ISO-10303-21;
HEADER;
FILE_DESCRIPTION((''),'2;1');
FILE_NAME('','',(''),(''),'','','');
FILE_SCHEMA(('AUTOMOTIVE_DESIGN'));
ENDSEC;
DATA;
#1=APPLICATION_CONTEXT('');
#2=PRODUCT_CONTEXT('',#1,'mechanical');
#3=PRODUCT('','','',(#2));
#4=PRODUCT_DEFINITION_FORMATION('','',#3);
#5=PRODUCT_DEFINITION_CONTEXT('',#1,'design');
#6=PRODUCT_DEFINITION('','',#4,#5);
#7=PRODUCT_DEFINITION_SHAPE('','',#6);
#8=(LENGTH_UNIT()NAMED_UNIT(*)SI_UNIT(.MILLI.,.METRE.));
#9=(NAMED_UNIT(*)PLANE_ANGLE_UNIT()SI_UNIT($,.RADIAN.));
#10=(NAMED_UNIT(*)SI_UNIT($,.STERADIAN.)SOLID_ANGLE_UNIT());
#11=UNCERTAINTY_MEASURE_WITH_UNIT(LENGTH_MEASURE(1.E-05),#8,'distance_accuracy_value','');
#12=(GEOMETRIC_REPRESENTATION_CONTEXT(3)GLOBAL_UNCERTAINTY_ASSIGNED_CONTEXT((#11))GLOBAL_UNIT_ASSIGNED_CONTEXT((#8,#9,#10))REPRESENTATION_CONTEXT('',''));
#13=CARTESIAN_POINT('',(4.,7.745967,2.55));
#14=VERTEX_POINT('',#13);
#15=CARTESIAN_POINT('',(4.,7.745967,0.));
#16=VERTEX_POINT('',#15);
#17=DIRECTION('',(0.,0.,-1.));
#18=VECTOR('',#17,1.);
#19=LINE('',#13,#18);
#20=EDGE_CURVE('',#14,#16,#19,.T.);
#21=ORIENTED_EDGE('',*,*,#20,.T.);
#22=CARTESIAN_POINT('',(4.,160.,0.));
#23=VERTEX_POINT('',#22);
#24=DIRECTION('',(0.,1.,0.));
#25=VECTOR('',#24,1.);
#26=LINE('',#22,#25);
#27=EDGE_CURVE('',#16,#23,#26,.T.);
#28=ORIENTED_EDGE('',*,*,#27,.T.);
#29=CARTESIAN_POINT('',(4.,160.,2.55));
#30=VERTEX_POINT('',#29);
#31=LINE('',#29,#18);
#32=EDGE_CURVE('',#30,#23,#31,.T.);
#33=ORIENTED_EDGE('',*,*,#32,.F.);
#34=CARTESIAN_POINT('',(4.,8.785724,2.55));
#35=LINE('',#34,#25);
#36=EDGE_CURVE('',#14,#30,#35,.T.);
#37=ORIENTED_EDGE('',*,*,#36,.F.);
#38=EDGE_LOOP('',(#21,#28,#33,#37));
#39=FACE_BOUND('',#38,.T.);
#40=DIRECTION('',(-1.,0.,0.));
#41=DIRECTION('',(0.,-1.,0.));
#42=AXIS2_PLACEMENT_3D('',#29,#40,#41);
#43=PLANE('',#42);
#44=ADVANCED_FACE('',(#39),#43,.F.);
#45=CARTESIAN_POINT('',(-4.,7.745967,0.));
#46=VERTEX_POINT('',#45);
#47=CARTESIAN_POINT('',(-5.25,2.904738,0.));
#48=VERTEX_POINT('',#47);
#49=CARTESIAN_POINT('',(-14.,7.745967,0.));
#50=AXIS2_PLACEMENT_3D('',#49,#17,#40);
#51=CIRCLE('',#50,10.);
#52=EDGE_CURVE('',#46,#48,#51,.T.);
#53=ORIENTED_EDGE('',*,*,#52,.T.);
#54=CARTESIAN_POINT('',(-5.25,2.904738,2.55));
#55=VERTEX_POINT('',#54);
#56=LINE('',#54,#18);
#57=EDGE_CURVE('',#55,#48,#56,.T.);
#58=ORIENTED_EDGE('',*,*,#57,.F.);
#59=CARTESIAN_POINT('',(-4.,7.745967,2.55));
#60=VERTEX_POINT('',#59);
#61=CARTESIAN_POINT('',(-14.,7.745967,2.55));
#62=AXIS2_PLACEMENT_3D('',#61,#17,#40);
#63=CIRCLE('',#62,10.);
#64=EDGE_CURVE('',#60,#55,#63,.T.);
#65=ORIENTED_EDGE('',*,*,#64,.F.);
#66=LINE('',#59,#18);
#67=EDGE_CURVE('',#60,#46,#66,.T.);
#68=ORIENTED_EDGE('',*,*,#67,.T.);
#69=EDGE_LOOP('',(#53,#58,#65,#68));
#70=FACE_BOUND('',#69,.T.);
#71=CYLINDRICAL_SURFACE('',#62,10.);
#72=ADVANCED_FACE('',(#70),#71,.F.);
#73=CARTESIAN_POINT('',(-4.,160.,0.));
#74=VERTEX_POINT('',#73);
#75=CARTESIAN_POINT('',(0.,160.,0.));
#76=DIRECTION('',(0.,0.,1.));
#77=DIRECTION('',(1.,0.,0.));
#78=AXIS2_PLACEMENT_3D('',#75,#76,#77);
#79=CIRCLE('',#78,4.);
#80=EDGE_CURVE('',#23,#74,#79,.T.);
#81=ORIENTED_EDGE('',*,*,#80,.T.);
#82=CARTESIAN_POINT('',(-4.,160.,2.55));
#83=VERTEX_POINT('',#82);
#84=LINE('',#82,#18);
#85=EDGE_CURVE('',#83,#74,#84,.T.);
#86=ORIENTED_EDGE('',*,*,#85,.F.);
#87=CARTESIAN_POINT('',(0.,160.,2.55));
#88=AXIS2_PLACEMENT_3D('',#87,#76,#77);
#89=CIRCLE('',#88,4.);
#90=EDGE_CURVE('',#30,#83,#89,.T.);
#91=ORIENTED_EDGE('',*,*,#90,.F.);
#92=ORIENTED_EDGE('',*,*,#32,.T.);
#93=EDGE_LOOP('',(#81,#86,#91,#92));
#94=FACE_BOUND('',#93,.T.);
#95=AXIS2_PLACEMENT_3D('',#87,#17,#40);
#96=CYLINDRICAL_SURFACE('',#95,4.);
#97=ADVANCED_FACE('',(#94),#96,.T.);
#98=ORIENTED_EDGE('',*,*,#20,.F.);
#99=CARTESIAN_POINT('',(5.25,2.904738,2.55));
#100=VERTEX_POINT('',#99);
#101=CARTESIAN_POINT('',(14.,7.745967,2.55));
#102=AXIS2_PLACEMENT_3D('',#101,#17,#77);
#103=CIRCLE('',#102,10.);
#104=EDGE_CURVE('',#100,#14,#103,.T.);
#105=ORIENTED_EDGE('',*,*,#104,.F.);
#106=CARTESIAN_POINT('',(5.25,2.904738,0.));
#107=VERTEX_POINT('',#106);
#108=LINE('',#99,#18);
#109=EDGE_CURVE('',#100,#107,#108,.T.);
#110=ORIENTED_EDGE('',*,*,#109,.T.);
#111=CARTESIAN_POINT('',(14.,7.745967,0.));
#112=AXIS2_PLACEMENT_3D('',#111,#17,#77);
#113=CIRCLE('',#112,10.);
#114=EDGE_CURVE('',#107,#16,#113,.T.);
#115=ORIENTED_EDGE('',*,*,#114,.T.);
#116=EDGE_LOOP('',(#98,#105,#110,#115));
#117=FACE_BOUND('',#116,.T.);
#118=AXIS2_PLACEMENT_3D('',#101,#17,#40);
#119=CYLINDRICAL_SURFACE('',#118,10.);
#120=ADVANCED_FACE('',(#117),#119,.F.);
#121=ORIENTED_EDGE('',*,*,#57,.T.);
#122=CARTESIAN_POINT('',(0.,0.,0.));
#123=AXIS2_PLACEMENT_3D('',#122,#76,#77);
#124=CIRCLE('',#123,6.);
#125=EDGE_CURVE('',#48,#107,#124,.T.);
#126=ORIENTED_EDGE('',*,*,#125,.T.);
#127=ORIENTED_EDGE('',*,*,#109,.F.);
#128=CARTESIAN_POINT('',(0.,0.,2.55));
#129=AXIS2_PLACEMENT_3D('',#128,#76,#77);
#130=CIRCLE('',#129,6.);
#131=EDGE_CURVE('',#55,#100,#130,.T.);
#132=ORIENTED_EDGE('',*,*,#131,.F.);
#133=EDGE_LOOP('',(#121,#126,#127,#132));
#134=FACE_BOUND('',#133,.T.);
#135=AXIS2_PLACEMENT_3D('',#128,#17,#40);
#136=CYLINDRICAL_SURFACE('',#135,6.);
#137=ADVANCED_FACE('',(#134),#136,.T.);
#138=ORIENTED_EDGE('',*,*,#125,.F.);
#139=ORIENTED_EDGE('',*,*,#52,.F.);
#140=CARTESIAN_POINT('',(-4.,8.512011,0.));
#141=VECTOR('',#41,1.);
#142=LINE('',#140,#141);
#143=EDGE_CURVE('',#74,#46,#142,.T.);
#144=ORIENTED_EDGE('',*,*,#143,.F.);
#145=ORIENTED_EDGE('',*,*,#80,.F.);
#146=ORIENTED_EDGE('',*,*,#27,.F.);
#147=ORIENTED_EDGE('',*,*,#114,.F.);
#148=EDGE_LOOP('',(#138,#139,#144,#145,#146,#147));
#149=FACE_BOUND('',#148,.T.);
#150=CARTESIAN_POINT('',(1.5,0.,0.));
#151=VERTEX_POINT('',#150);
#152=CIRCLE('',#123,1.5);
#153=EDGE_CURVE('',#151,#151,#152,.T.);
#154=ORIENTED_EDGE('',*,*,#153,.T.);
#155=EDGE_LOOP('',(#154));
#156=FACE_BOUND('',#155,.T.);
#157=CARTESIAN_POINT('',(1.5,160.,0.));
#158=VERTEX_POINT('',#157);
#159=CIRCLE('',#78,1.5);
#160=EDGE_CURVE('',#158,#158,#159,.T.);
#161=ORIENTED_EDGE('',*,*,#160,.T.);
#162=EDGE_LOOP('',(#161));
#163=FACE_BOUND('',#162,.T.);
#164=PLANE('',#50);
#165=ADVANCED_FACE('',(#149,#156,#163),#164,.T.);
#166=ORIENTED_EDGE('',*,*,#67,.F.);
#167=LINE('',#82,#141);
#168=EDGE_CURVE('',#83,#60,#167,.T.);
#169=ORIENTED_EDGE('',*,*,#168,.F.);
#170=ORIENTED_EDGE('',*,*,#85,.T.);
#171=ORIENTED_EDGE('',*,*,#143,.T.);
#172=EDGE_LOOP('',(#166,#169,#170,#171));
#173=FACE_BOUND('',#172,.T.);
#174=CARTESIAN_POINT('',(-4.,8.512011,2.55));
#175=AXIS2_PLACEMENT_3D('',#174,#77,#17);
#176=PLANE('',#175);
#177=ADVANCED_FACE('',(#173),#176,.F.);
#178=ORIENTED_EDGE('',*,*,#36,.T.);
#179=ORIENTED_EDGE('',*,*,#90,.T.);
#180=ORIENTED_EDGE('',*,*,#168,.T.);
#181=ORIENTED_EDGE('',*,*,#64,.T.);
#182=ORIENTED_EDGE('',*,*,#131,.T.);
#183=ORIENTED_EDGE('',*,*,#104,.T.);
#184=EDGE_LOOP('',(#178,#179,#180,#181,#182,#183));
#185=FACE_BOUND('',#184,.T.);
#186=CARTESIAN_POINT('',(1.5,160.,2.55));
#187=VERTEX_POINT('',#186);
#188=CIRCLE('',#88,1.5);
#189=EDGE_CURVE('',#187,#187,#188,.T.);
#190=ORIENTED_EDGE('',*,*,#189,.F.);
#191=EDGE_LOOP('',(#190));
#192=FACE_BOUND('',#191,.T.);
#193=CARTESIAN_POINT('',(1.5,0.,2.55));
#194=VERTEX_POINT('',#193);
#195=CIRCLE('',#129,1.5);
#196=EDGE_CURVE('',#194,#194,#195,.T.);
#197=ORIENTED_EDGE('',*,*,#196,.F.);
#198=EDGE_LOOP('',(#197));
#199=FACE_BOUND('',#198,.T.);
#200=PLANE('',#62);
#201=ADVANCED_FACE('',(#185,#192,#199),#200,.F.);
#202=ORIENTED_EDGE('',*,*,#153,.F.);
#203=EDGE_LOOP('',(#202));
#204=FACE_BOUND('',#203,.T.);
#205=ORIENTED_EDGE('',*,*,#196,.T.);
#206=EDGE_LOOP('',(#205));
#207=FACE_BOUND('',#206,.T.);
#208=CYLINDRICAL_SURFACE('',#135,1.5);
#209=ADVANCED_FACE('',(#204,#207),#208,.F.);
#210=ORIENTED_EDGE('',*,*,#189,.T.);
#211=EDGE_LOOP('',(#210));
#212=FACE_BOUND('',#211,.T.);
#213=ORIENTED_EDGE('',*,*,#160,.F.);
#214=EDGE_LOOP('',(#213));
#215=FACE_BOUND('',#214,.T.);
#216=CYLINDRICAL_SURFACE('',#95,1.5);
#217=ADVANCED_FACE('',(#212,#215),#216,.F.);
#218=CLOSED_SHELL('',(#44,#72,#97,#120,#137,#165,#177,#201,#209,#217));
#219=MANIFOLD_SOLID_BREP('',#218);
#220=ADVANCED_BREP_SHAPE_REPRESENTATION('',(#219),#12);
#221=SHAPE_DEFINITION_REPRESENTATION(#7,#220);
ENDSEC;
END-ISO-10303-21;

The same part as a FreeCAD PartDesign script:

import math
import FreeCAD as App
import Part
import Sketcher

V = App.Vector

doc = App.newDocument("Part")
body = doc.addObject("PartDesign::Body", "Body")

# Sketch on XY plane
sketch1 = body.newObject("Sketcher::SketchObject", "Sketch")
sketch1.AttachmentSupport = (doc.getObject("XY_Plane"), [""])
sketch1.MapMode = "FlatFace"
sketch1.addGeometry([
    Part.ArcOfCircle(Part.Circle(V(-14, 7.7, 0), V(0, 0, 1), 10), math.radians(-29), math.radians(0)),  # 0
    Part.ArcOfCircle(Part.Circle(V(0, 0, 0), V(0, 0, 1), 6), math.radians(151), math.radians(389)),  # 1
    Part.ArcOfCircle(Part.Circle(V(14, 7.7, 0), V(0, 0, 1), 10), math.radians(180), math.radians(209)),  # 2
    Part.LineSegment(V(4, 7.7, 0), V(4, 160, 0)),  # 3
    Part.ArcOfCircle(Part.Circle(V(0, 160, 0), V(0, 0, 1), 4), math.radians(0), math.radians(180)),  # 4
    Part.LineSegment(V(-4, 160, 0), V(-4, 7.7, 0)),  # 5
    Part.Circle(V(0, 0, 0), V(0, 0, 1), 1.5),  # 6
    Part.Circle(V(0, 160, 0), V(0, 0, 1), 1.5),  # 7
], False)
sketch1.addConstraint([
    Sketcher.Constraint("Tangent", 0, 1, 1, 1),
    Sketcher.Constraint("Tangent", 1, 2, 2, 2),
    Sketcher.Constraint("Tangent", 2, 1, 3, 1),
    Sketcher.Constraint("Tangent", 3, 2, 4, 1),
    Sketcher.Constraint("Tangent", 4, 2, 5, 1),
    Sketcher.Constraint("Tangent", 5, 2, 0, 2),
    Sketcher.Constraint("Vertical", 3),
    Sketcher.Constraint("Vertical", 5),
    Sketcher.Constraint("Coincident", 1, 3, -1, 1),
    Sketcher.Constraint("Coincident", 6, 3, -1, 1),
    Sketcher.Constraint("Coincident", 7, 3, 4, 3),
    Sketcher.Constraint("Equal", 0, 2),
    Sketcher.Constraint("Equal", 6, 7),
    Sketcher.Constraint("PointOnObject", 4, 3, -2),
    Sketcher.Constraint("Diameter", 6, 3.0),
    Sketcher.Constraint("Radius", 0, 10.0),
    Sketcher.Constraint("Radius", 1, 6.0),
    Sketcher.Constraint("Radius", 4, 4.0),
    Sketcher.Constraint("DistanceY", -1, 1, 4, 3, 160.0),
])
pad1 = body.newObject("PartDesign::Pad", "Pad")
pad1.Profile = sketch1
pad1.Length = 2.55

doc.recompute()
